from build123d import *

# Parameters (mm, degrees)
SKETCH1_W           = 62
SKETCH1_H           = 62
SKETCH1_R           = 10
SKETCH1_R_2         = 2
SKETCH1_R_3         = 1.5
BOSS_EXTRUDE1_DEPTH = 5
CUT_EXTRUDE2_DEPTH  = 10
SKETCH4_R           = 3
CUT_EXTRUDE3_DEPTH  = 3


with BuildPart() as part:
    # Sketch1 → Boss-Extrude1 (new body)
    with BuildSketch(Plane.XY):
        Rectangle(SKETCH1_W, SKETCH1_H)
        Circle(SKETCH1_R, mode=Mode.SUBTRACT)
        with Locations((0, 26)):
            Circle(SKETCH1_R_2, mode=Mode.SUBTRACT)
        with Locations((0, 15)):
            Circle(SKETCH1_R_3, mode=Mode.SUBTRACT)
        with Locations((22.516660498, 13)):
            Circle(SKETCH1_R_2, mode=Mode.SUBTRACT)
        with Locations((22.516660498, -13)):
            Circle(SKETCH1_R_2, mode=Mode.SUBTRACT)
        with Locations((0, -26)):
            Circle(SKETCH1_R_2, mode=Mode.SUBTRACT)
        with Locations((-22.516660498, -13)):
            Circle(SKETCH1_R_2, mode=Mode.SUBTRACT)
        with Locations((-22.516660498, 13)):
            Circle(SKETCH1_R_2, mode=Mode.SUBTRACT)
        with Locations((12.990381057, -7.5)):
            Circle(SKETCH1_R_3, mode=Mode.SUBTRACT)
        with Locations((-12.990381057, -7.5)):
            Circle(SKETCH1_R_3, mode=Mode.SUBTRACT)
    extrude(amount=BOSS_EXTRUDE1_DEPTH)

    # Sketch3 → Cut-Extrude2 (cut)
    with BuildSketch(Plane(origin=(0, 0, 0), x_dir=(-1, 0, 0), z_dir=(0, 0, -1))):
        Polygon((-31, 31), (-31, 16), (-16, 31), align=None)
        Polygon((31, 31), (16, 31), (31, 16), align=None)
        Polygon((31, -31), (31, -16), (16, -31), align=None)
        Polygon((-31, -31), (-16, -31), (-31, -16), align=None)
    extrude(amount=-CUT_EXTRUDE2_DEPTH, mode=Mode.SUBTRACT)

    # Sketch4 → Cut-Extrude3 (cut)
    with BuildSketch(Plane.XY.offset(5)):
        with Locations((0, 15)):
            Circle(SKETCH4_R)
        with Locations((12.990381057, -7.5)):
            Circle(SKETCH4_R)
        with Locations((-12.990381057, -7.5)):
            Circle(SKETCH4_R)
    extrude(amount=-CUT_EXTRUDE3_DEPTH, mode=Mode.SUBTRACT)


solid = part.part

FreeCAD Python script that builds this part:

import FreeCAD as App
import Part
import Sketcher
Q = App.Units.Quantity

doc = App.newDocument("Part")
body = doc.addObject("PartDesign::Body", "Body")

# Sketch on XY plane
sketch1 = body.newObject("Sketcher::SketchObject", "Sketch")
sketch1.AttachmentSupport = (doc.getObject("XY_Plane"), [""])
sketch1.MapMode = "FlatFace"
sketch1.addGeometry([
    Part.LineSegment(App.Vector(-31, 31, 0), App.Vector(-31, -31, 0)),  # 0
    Part.LineSegment(App.Vector(-31, -31, 0), App.Vector(31, -31, 0)),  # 1
    Part.LineSegment(App.Vector(31, -31, 0), App.Vector(31, 31, 0)),  # 2
    Part.LineSegment(App.Vector(31, 31, 0), App.Vector(-31, 31, 0)),  # 3
    Part.Circle(App.Vector(-22.5, -13, 0), App.Vector(0, 0, 1), 2),  # 4
    Part.Circle(App.Vector(-13, -7.5, 0), App.Vector(0, 0, 1), 1.5),  # 5
    Part.Circle(App.Vector(0, -26, 0), App.Vector(0, 0, 1), 2),  # 6
    Part.Circle(App.Vector(13, -7.5, 0), App.Vector(0, 0, 1), 1.5),  # 7
    Part.Circle(App.Vector(22.5, -13, 0), App.Vector(0, 0, 1), 2),  # 8
    Part.Circle(App.Vector(-22.5, 13, 0), App.Vector(0, 0, 1), 2),  # 9
    Part.Circle(App.Vector(0, 0, 0), App.Vector(0, 0, 1), 10),  # 10
    Part.Circle(App.Vector(22.5, 13, 0), App.Vector(0, 0, 1), 2),  # 11
    Part.Circle(App.Vector(0, 15, 0), App.Vector(0, 0, 1), 1.5),  # 12
    Part.Circle(App.Vector(0, 26, 0), App.Vector(0, 0, 1), 2),  # 13
], False)
sketch1.addConstraint([
    Sketcher.Constraint("Coincident", 0, 2, 1, 1),
    Sketcher.Constraint("Coincident", 1, 2, 2, 1),
    Sketcher.Constraint("Coincident", 2, 2, 3, 1),
    Sketcher.Constraint("Coincident", 3, 2, 0, 1),
    Sketcher.Constraint("Vertical", 0),
    Sketcher.Constraint("Horizontal", 1),
    Sketcher.Constraint("Vertical", 2),
    Sketcher.Constraint("Horizontal", 3),
    Sketcher.Constraint("Coincident", 10, 3, -1, 1),
    Sketcher.Constraint("Equal", 4, 6),
    Sketcher.Constraint("Equal", 5, 7),
    Sketcher.Constraint("Equal", 6, 8),
    Sketcher.Constraint("Equal", 8, 9),
    Sketcher.Constraint("Equal", 9, 11),
    Sketcher.Constraint("Equal", 7, 12),
    Sketcher.Constraint("Equal", 11, 13),
    Sketcher.Constraint("Symmetric", 8, 3, 9, 3, -1, 1),
    Sketcher.Constraint("Symmetric", 4, 3, 11, 3, -1, 1),
    Sketcher.Constraint("Symmetric", 6, 3, 13, 3, -1, 1),
    Sketcher.Constraint("Symmetric", 0, 2, 2, 2, -1, 1),
    Sketcher.Constraint("Symmetric", 5, 3, 7, 3, -2),
    Sketcher.Constraint("Symmetric", 4, 3, 8, 3, -2),
    Sketcher.Constraint("PointOnObject", 6, 3, -2),
    Sketcher.Constraint("PointOnObject", 12, 3, -2),
    Sketcher.Constraint("Equal", 3, 0),
    Sketcher.Constraint("Diameter", 4, Q("4 mm")),
    Sketcher.Constraint("Diameter", 5, Q("3 mm")),
    Sketcher.Constraint("Diameter", 10, Q("20 mm")),
    Sketcher.Constraint("DistanceX", 1, 1, 1, 2, Q("62 mm")),
    Sketcher.Constraint("DistanceY", 4, 3, -1, 1, Q("13 mm")),
    Sketcher.Constraint("DistanceY", 6, 3, -1, 1, Q("26 mm")),
    Sketcher.Constraint("DistanceY", -1, 1, 12, 3, Q("15 mm")),
    Sketcher.Constraint("DistanceY", 5, 3, -1, 1, Q("7.5 mm")),
    Sketcher.Constraint("DistanceX", 4, 3, -1, 1, Q("22.51666 mm")),
    Sketcher.Constraint("DistanceX", 5, 3, -1, 1, Q("12.990381 mm")),
])
pad1 = body.newObject("PartDesign::Pad", "Pad")
pad1.Profile = sketch1
pad1.Length = 5

# Sketch on XY plane
sketch2 = body.newObject("Sketcher::SketchObject", "Sketch001")
sketch2.AttachmentSupport = (doc.getObject("XY_Plane"), [""])
sketch2.MapMode = "FlatFace"
sketch2.addGeometry([
    Part.LineSegment(App.Vector(31, 31, 0), App.Vector(31, 16, 0)),  # 0
    Part.LineSegment(App.Vector(31, 16, 0), App.Vector(16, 31, 0)),  # 1
    Part.LineSegment(App.Vector(16, 31, 0), App.Vector(31, 31, 0)),  # 2
    Part.LineSegment(App.Vector(-31, 31, 0), App.Vector(-16, 31, 0)),  # 3
    Part.LineSegment(App.Vector(-16, 31, 0), App.Vector(-31, 16, 0)),  # 4
    Part.LineSegment(App.Vector(-31, 16, 0), App.Vector(-31, 31, 0)),  # 5
    Part.LineSegment(App.Vector(-31, -31, 0), App.Vector(-31, -16, 0)),  # 6
    Part.LineSegment(App.Vector(-31, -16, 0), App.Vector(-16, -31, 0)),  # 7
    Part.LineSegment(App.Vector(-16, -31, 0), App.Vector(-31, -31, 0)),  # 8
    Part.LineSegment(App.Vector(31, -31, 0), App.Vector(16, -31, 0)),  # 9
    Part.LineSegment(App.Vector(16, -31, 0), App.Vector(31, -16, 0)),  # 10
    Part.LineSegment(App.Vector(31, -16, 0), App.Vector(31, -31, 0)),  # 11
], False)
sketch2.addConstraint([
    Sketcher.Constraint("Coincident", 0, 2, 1, 1),
    Sketcher.Constraint("Coincident", 1, 2, 2, 1),
    Sketcher.Constraint("Coincident", 2, 2, 0, 1),
    Sketcher.Constraint("Coincident", 3, 2, 4, 1),
    Sketcher.Constraint("Coincident", 4, 2, 5, 1),
    Sketcher.Constraint("Coincident", 5, 2, 3, 1),
    Sketcher.Constraint("Coincident", 6, 2, 7, 1),
    Sketcher.Constraint("Coincident", 7, 2, 8, 1),
    Sketcher.Constraint("Coincident", 8, 2, 6, 1),
    Sketcher.Constraint("Coincident", 9, 2, 10, 1),
    Sketcher.Constraint("Coincident", 10, 2, 11, 1),
    Sketcher.Constraint("Coincident", 11, 2, 9, 1),
    Sketcher.Constraint("Vertical", 0),
    Sketcher.Constraint("Horizontal", 2),
    Sketcher.Constraint("Horizontal", 3),
    Sketcher.Constraint("Vertical", 5),
    Sketcher.Constraint("Vertical", 6),
    Sketcher.Constraint("Horizontal", 8),
    Sketcher.Constraint("Horizontal", 9),
    Sketcher.Constraint("Vertical", 11),
    Sketcher.Constraint("Symmetric", 0, 2, 6, 2, -1, 1),
    Sketcher.Constraint("Symmetric", 1, 2, 7, 2, -1, 1),
    Sketcher.Constraint("Symmetric", 3, 2, 9, 2, -1, 1),
    Sketcher.Constraint("Symmetric", 4, 2, 10, 2, -1, 1),
    Sketcher.Constraint("Symmetric", 1, 2, 3, 2, -2),
    Sketcher.Constraint("Symmetric", 0, 2, 4, 2, -2),
    Sketcher.Constraint("Perpendicular", 1, 4),
    Sketcher.Constraint("DistanceX", 2, 1, 2, 2, Q("15 mm")),
    Sketcher.Constraint("DistanceX", -1, 1, 0, 2, Q("31 mm")),
    Sketcher.Constraint("DistanceY", -1, 1, 0, 2, Q("16 mm")),
])
pocket1 = body.newObject("PartDesign::Pocket", "Pocket")
pocket1.Profile = sketch2
pocket1.Length = 10
pocket1.Reversed = True

# Sketch on XY plane
sketch3 = body.newObject("Sketcher::SketchObject", "Sketch002")
sketch3.AttachmentSupport = (doc.getObject("XY_Plane"), [""])
sketch3.MapMode = "FlatFace"
sketch3.AttachmentOffset = App.Placement(App.Vector(0, 0, 5), App.Rotation())
sketch3.addGeometry([
    Part.Circle(App.Vector(0, 15, 0), App.Vector(0, 0, 1), 3),
    Part.Circle(App.Vector(13, -7.5, 0), App.Vector(0, 0, 1), 3),
    Part.Circle(App.Vector(-13, -7.5, 0), App.Vector(0, 0, 1), 3),
], False)
sketch3.addConstraint([
    Sketcher.Constraint("Equal", 0, 1),
    Sketcher.Constraint("Equal", 1, 2),
    Sketcher.Constraint("Symmetric", 1, 3, 2, 3, -2),
    Sketcher.Constraint("PointOnObject", 0, 3, -2),
    Sketcher.Constraint("Diameter", 0, Q("6 mm")),
    Sketcher.Constraint("DistanceY", -1, 1, 0, 3, Q("15 mm")),
    Sketcher.Constraint("DistanceY", 1, 3, -1, 1, Q("7.5 mm")),
    Sketcher.Constraint("DistanceX", -1, 1, 1, 3, Q("12.990381 mm")),
])
pocket2 = body.newObject("PartDesign::Pocket", "Pocket001")
pocket2.Profile = sketch3
pocket2.Length = 3

doc.recompute()
